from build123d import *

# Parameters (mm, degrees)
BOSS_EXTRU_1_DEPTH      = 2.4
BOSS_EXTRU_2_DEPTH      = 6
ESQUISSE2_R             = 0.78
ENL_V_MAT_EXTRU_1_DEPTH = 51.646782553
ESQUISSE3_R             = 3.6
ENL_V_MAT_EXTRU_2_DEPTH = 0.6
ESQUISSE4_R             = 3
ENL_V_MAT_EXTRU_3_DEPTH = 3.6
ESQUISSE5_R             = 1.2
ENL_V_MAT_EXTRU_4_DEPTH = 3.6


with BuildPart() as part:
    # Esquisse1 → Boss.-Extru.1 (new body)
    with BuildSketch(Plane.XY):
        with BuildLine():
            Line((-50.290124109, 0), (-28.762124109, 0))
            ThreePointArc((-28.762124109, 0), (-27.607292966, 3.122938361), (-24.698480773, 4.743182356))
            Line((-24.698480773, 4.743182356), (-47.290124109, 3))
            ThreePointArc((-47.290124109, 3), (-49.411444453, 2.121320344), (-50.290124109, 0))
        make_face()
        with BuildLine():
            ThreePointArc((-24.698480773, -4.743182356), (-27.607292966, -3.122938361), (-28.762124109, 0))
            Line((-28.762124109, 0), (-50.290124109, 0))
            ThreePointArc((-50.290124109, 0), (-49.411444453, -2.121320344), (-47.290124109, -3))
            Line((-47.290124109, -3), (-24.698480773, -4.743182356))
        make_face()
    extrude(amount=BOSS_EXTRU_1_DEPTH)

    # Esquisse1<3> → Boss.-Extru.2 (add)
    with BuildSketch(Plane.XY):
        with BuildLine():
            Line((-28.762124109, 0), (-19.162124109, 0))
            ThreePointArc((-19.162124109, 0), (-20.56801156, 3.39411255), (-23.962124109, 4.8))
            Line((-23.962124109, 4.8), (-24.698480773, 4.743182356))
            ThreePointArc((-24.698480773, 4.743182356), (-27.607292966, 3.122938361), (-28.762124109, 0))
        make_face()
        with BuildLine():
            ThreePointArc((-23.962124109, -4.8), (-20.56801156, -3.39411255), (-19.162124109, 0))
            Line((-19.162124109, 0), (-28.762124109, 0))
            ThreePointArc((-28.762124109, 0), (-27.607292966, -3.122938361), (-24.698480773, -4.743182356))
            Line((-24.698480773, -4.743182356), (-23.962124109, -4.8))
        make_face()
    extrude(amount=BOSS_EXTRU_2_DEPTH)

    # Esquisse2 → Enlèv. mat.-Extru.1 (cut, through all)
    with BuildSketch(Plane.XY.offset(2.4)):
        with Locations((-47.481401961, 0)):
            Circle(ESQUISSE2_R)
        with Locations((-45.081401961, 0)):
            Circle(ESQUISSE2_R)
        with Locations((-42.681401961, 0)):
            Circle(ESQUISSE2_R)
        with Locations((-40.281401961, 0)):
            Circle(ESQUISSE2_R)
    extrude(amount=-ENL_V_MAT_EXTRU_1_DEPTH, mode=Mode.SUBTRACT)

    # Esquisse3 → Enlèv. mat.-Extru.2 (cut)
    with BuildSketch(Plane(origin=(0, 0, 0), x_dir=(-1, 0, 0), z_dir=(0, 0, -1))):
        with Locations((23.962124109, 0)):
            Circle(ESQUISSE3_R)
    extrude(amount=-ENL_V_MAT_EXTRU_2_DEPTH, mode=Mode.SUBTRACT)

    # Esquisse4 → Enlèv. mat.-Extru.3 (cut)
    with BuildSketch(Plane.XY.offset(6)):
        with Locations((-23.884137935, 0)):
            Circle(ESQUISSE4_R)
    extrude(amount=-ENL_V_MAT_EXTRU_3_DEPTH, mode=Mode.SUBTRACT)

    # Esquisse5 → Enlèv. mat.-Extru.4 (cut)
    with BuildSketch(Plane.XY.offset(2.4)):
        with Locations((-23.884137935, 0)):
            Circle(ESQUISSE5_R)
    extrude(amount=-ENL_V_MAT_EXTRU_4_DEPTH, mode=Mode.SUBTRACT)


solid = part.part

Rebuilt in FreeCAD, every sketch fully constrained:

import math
import FreeCAD as App
import Part
import Sketcher
from FreeCAD import Vector

doc = App.newDocument("Part")
body = doc.addObject("PartDesign::Body", "Body")

# Sketch on XY plane
sketch1 = body.newObject("Sketcher::SketchObject", "Sketch")
sketch1.AttachmentSupport = (doc.getObject("XY_Plane"), [""])
sketch1.MapMode = "FlatFace"
sketch1.addGeometry(Part.ArcOfCircle(Part.Circle(Vector(-23.962124, 0, 0), Vector(0, 0, 1), 4.8), math.radians(98.824456), math.radians(180)), False)
sketch1.addGeometry(Part.LineSegment(Vector(-24.698481, 4.743182, 0), Vector(-47.290124, 3, 0)), False)
sketch1.addGeometry(Part.ArcOfCircle(Part.Circle(Vector(-47.290124, 0, 0), Vector(0, 0, 1), 3), math.radians(90), math.radians(180)), False)
sketch1.addGeometry(Part.ArcOfCircle(Part.Circle(Vector(-47.290124, 0, 0), Vector(0, 0, 1), 3), math.radians(180), math.radians(270)), False)
sketch1.addGeometry(Part.LineSegment(Vector(-47.290124, -3, 0), Vector(-24.698481, -4.743182, 0)), False)
sketch1.addGeometry(Part.ArcOfCircle(Part.Circle(Vector(-23.962124, 0, 0), Vector(0, 0, 1), 4.8), math.radians(180), math.radians(261.175544)), False)
sketch1.addConstraint(Sketcher.Constraint("Coincident", 0, 1, 1, 1))
sketch1.addConstraint(Sketcher.Constraint("Coincident", 1, 2, 2, 1))
sketch1.addConstraint(Sketcher.Constraint("Tangent", 2, 2, 3, 1))
sketch1.addConstraint(Sketcher.Constraint("Coincident", 3, 2, 4, 1))
sketch1.addConstraint(Sketcher.Constraint("Coincident", 4, 2, 5, 2))
sketch1.addConstraint(Sketcher.Constraint("Tangent", 5, 1, 0, 2))
sketch1.addConstraint(Sketcher.Constraint("Equal", 2, 3))
sketch1.addConstraint(Sketcher.Constraint("Equal", 0, 5))
sketch1.addConstraint(Sketcher.Constraint("Symmetric", 1, 2, 3, 2, -1))
sketch1.addConstraint(Sketcher.Constraint("Symmetric", 0, 1, 4, 2, -1))
sketch1.addConstraint(Sketcher.Constraint("PointOnObject", 2, 2, -1))
sketch1.addConstraint(Sketcher.Constraint("PointOnObject", 5, 1, -1))
sketch1.addConstraint(Sketcher.Constraint("Vertical", 3, 3, 1, 2))
sketch1.addConstraint(Sketcher.Constraint("Radius", 2, 3.0))
sketch1.addConstraint(Sketcher.Constraint("Radius", 0, 4.8))
sketch1.addConstraint(Sketcher.Constraint("DistanceX", 2, 3, 0, 3, 23.328))
sketch1.addConstraint(Sketcher.Constraint("DistanceX", 0, 1, -1, 1, 24.698481))
sketch1.addConstraint(Sketcher.Constraint("Distance", 1, 22.658796))
pad1 = body.newObject("PartDesign::Pad", "Pad")
pad1.Profile = sketch1
pad1.Length = 2.4

# Sketch on XY plane
sketch2 = body.newObject("Sketcher::SketchObject", "Sketch001")
sketch2.AttachmentSupport = (doc.getObject("XY_Plane"), [""])
sketch2.MapMode = "FlatFace"
sketch2.addGeometry(Part.ArcOfCircle(Part.Circle(Vector(-23.962124, 0, 0), Vector(0, 0, 1), 4.8), math.radians(0), math.radians(90)), False)
sketch2.addGeometry(Part.LineSegment(Vector(-23.962124, 4.8, 0), Vector(-24.698481, 4.743182, 0)), False)
sketch2.addGeometry(Part.ArcOfCircle(Part.Circle(Vector(-23.962124, 0, 0), Vector(0, 0, 1), 4.8), math.radians(98.824456), math.radians(180)), False)
sketch2.addGeometry(Part.ArcOfCircle(Part.Circle(Vector(-23.962124, 0, 0), Vector(0, 0, 1), 4.8), math.radians(180), math.radians(261.175544)), False)
sketch2.addGeometry(Part.LineSegment(Vector(-24.698481, -4.743182, 0), Vector(-23.962124, -4.8, 0)), False)
sketch2.addGeometry(Part.ArcOfCircle(Part.Circle(Vector(-23.962124, 0, 0), Vector(0, 0, 1), 4.8), math.radians(-90), math.radians(0)), False)
sketch2.addConstraint(Sketcher.Constraint("Coincident", 0, 2, 1, 1))
sketch2.addConstraint(Sketcher.Constraint("Coincident", 1, 2, 2, 1))
sketch2.addConstraint(Sketcher.Constraint("Tangent", 2, 2, 3, 1))
sketch2.addConstraint(Sketcher.Constraint("Coincident", 3, 2, 4, 1))
sketch2.addConstraint(Sketcher.Constraint("Coincident", 4, 2, 5, 1))
sketch2.addConstraint(Sketcher.Constraint("Tangent", 5, 2, 0, 1))
sketch2.addConstraint(Sketcher.Constraint("Coincident", 2, 3, 0, 3))
sketch2.addConstraint(Sketcher.Constraint("Equal", 0, 2))
sketch2.addConstraint(Sketcher.Constraint("Equal", 2, 3))
sketch2.addConstraint(Sketcher.Constraint("Equal", 3, 5))
sketch2.addConstraint(Sketcher.Constraint("Symmetric", 1, 2, 3, 2, -1))
sketch2.addConstraint(Sketcher.Constraint("PointOnObject", 2, 2, -1))
sketch2.addConstraint(Sketcher.Constraint("PointOnObject", 5, 2, -1))
sketch2.addConstraint(Sketcher.Constraint("Vertical", 5, 3, 0, 2))
sketch2.addConstraint(Sketcher.Constraint("Vertical", 0, 2, 4, 2))
sketch2.addConstraint(Sketcher.Constraint("Radius", 0, 4.8))
sketch2.addConstraint(Sketcher.Constraint("DistanceX", 1, 2, -1, 1, 24.698481))
sketch2.addConstraint(Sketcher.Constraint("Distance", 1, 0.738545))
pad2 = body.newObject("PartDesign::Pad", "Pad001")
pad2.Profile = sketch2
pad2.Length = 6

# Sketch on XY plane
sketch3 = body.newObject("Sketcher::SketchObject", "Sketch002")
sketch3.AttachmentSupport = (doc.getObject("XY_Plane"), [""])
sketch3.MapMode = "FlatFace"
sketch3.AttachmentOffset = App.Placement(Vector(0, 0, 2.4), App.Rotation())
sketch3.addGeometry(Part.Circle(Vector(-47.481402, 0, 0), Vector(0, 0, 1), 0.78), False)
sketch3.addGeometry(Part.Circle(Vector(-45.081402, 0, 0), Vector(0, 0, 1), 0.78), False)
sketch3.addGeometry(Part.Circle(Vector(-42.681402, 0, 0), Vector(0, 0, 1), 0.78), False)
sketch3.addGeometry(Part.Circle(Vector(-40.281402, 0, 0), Vector(0, 0, 1), 0.78), False)
sketch3.addConstraint(Sketcher.Constraint("Equal", 0, 1))
sketch3.addConstraint(Sketcher.Constraint("Equal", 1, 2))
sketch3.addConstraint(Sketcher.Constraint("Equal", 2, 3))
sketch3.addConstraint(Sketcher.Constraint("PointOnObject", 0, 3, -1))
sketch3.addConstraint(Sketcher.Constraint("PointOnObject", 1, 3, -1))
sketch3.addConstraint(Sketcher.Constraint("PointOnObject", 2, 3, -1))
sketch3.addConstraint(Sketcher.Constraint("PointOnObject", 3, 3, -1))
sketch3.addConstraint(Sketcher.Constraint("Diameter", 0, 1.56))
sketch3.addConstraint(Sketcher.Constraint("DistanceX", 0, 3, 1, 3, 2.4))
sketch3.addConstraint(Sketcher.Constraint("DistanceX", 1, 3, 2, 3, 2.4))
sketch3.addConstraint(Sketcher.Constraint("DistanceX", 2, 3, 3, 3, 2.4))
sketch3.addConstraint(Sketcher.Constraint("DistanceX", 0, 3, -1, 1, 47.481402))
pocket1 = body.newObject("PartDesign::Pocket", "Pocket")
pocket1.Profile = sketch3
pocket1.Type = "ThroughAll"

# Sketch on XY plane
sketch4 = body.newObject("Sketcher::SketchObject", "Sketch003")
sketch4.AttachmentSupport = (doc.getObject("XY_Plane"), [""])
sketch4.MapMode = "FlatFace"
sketch4.addGeometry(Part.Circle(Vector(-23.962124, 0, 0), Vector(0, 0, 1), 3.6), False)
sketch4.addConstraint(Sketcher.Constraint("PointOnObject", 0, 3, -1))
sketch4.addConstraint(Sketcher.Constraint("Diameter", 0, 7.2))
sketch4.addConstraint(Sketcher.Constraint("DistanceX", 0, 3, -1, 1, 23.962124))
pocket2 = body.newObject("PartDesign::Pocket", "Pocket001")
pocket2.Profile = sketch4
pocket2.Length = 0.6
pocket2.Reversed = True

# Sketch on XY plane
sketch5 = body.newObject("Sketcher::SketchObject", "Sketch004")
sketch5.AttachmentSupport = (doc.getObject("XY_Plane"), [""])
sketch5.MapMode = "FlatFace"
sketch5.AttachmentOffset = App.Placement(Vector(0, 0, 6), App.Rotation())
sketch5.addGeometry(Part.Circle(Vector(-23.884138, 0, 0), Vector(0, 0, 1), 3), False)
sketch5.addConstraint(Sketcher.Constraint("PointOnObject", 0, 3, -1))
sketch5.addConstraint(Sketcher.Constraint("Diameter", 0, 6.0))
sketch5.addConstraint(Sketcher.Constraint("DistanceX", 0, 3, -1, 1, 23.884138))
pocket3 = body.newObject("PartDesign::Pocket", "Pocket002")
pocket3.Profile = sketch5
pocket3.Length = 3.6

# Sketch on XY plane
sketch6 = body.newObject("Sketcher::SketchObject", "Sketch005")
sketch6.AttachmentSupport = (doc.getObject("XY_Plane"), [""])
sketch6.MapMode = "FlatFace"
sketch6.AttachmentOffset = App.Placement(Vector(0, 0, 2.4), App.Rotation())
sketch6.addGeometry(Part.Circle(Vector(-23.884138, 0, 0), Vector(0, 0, 1), 1.2), False)
sketch6.addConstraint(Sketcher.Constraint("PointOnObject", 0, 3, -1))
sketch6.addConstraint(Sketcher.Constraint("Diameter", 0, 2.4))
sketch6.addConstraint(Sketcher.Constraint("DistanceX", 0, 3, -1, 1, 23.884138))
pocket4 = body.newObject("PartDesign::Pocket", "Pocket003")
pocket4.Profile = sketch6
pocket4.Length = 3.6

doc.recompute()
